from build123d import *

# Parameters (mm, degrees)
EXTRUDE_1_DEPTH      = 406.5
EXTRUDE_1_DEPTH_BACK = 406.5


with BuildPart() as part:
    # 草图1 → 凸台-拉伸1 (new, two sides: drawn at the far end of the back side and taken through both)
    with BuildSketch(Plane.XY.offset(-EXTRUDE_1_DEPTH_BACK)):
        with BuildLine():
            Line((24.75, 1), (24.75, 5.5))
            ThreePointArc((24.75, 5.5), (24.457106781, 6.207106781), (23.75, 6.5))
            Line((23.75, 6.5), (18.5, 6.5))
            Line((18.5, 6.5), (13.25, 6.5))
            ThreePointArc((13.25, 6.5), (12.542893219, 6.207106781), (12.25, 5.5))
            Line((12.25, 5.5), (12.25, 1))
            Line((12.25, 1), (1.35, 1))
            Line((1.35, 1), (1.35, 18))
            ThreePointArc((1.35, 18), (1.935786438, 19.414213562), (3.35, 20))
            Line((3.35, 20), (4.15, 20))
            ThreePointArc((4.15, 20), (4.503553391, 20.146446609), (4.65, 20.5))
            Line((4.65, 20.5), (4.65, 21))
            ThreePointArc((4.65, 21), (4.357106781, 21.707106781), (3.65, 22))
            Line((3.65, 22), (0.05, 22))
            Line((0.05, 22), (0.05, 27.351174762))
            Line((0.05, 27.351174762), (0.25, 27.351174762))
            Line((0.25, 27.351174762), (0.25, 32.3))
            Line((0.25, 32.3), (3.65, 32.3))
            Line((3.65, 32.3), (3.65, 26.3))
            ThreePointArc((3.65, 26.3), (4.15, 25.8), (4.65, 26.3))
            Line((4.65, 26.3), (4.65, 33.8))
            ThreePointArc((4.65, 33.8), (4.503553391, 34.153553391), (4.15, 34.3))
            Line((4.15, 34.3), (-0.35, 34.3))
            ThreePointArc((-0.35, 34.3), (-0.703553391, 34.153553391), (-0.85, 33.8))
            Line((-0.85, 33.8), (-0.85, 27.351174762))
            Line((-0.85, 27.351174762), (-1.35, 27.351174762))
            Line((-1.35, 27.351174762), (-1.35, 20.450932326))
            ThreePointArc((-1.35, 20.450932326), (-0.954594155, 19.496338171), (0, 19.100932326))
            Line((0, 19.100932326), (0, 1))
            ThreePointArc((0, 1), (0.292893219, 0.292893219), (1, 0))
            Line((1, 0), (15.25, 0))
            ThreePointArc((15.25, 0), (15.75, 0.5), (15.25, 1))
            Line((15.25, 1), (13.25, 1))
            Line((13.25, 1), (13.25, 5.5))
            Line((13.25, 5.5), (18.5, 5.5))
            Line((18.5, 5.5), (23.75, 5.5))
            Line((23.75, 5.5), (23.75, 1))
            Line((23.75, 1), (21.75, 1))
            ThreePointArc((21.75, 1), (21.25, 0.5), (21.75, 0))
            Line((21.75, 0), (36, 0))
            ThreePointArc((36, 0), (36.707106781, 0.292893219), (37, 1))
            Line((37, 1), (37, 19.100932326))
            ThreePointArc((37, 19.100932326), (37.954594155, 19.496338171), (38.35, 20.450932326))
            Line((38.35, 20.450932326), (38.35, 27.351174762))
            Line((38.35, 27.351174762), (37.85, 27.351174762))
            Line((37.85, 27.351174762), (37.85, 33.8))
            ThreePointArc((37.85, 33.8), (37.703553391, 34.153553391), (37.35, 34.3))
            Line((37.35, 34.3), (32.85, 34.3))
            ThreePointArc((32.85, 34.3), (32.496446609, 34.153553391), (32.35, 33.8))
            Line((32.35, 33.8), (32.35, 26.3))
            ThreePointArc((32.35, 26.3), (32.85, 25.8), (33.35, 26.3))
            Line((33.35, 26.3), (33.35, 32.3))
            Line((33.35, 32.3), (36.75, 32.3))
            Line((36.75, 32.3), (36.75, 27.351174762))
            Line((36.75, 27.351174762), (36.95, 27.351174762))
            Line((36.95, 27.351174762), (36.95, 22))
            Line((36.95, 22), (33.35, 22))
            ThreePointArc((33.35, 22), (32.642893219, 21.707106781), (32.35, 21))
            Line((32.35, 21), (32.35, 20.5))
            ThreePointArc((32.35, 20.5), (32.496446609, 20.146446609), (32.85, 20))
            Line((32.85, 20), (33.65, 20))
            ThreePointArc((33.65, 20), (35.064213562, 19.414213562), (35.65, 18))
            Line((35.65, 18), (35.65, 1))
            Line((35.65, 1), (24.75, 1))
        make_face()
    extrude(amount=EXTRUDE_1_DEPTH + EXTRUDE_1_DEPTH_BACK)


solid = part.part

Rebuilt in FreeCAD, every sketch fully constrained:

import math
import FreeCAD as App
import Part
import Sketcher
Q = App.Units.Quantity

doc = App.newDocument("Part")
body = doc.addObject("PartDesign::Body", "Body")

# Sketch on XY plane
sketch1 = doc.addObject("Sketcher::SketchObject", "Sketch")
body.addObject(sketch1)
sketch1.AttachmentSupport = (doc.XY_Plane, [""])
sketch1.MapMode = "FlatFace"
sketch1.addGeometry([
    Part.LineSegment(App.Vector(24.75, 1, 0), App.Vector(24.75, 5.5, 0)),  # 0
    Part.ArcOfCircle(Part.Circle(App.Vector(23.75, 5.5, 0), App.Vector(0, 0, 1), 1), math.radians(0), math.radians(90)),  # 1
    Part.LineSegment(App.Vector(23.75, 6.5, 0), App.Vector(13.25, 6.5, 0)),  # 2
    Part.ArcOfCircle(Part.Circle(App.Vector(13.25, 5.5, 0), App.Vector(0, 0, 1), 1), math.radians(90), math.radians(180)),  # 3
    Part.LineSegment(App.Vector(12.25, 5.5, 0), App.Vector(12.25, 1, 0)),  # 4
    Part.LineSegment(App.Vector(12.25, 1, 0), App.Vector(1.35, 1, 0)),  # 5
    Part.LineSegment(App.Vector(1.35, 1, 0), App.Vector(1.35, 18, 0)),  # 6
    Part.ArcOfCircle(Part.Circle(App.Vector(3.35, 18, 0), App.Vector(0, 0, 1), 2), math.radians(90), math.radians(180)),  # 7
    Part.LineSegment(App.Vector(3.35, 20, 0), App.Vector(4.15, 20, 0)),  # 8
    Part.ArcOfCircle(Part.Circle(App.Vector(4.15, 20.5, 0), App.Vector(0, 0, 1), 0.5), math.radians(-90), math.radians(0)),  # 9
    Part.LineSegment(App.Vector(4.65, 20.5, 0), App.Vector(4.65, 21, 0)),  # 10
    Part.ArcOfCircle(Part.Circle(App.Vector(3.65, 21, 0), App.Vector(0, 0, 1), 1), math.radians(0), math.radians(90)),  # 11
    Part.LineSegment(App.Vector(3.65, 22, 0), App.Vector(0.05, 22, 0)),  # 12
    Part.LineSegment(App.Vector(0.05, 22, 0), App.Vector(0.05, 27.35, 0)),  # 13
    Part.LineSegment(App.Vector(0.05, 27.35, 0), App.Vector(0.25, 27.35, 0)),  # 14
    Part.LineSegment(App.Vector(0.25, 27.35, 0), App.Vector(0.25, 32.3, 0)),  # 15
    Part.LineSegment(App.Vector(0.25, 32.3, 0), App.Vector(3.65, 32.3, 0)),  # 16
    Part.LineSegment(App.Vector(3.65, 32.3, 0), App.Vector(3.65, 26.3, 0)),  # 17
    Part.ArcOfCircle(Part.Circle(App.Vector(4.15, 26.3, 0), App.Vector(0, 0, 1), 0.5), math.radians(180), math.radians(360)),  # 18
    Part.LineSegment(App.Vector(4.65, 26.3, 0), App.Vector(4.65, 33.8, 0)),  # 19
    Part.ArcOfCircle(Part.Circle(App.Vector(4.15, 33.8, 0), App.Vector(0, 0, 1), 0.5), math.radians(0), math.radians(90)),  # 20
    Part.LineSegment(App.Vector(4.15, 34.3, 0), App.Vector(-0.35, 34.3, 0)),  # 21
    Part.ArcOfCircle(Part.Circle(App.Vector(-0.35, 33.8, 0), App.Vector(0, 0, 1), 0.5), math.radians(90), math.radians(180)),  # 22
    Part.LineSegment(App.Vector(-0.85, 33.8, 0), App.Vector(-0.85, 27.35, 0)),  # 23
    Part.LineSegment(App.Vector(-0.85, 27.35, 0), App.Vector(-1.35, 27.35, 0)),  # 24
    Part.LineSegment(App.Vector(-1.35, 27.35, 0), App.Vector(-1.35, 20.45, 0)),  # 25
    Part.ArcOfCircle(Part.Circle(App.Vector(0, 20.45, 0), App.Vector(0, 0, 1), 1.35), math.radians(180), math.radians(270)),  # 26
    Part.LineSegment(App.Vector(0, 19.1, 0), App.Vector(0, 1, 0)),  # 27
    Part.ArcOfCircle(Part.Circle(App.Vector(1, 1, 0), App.Vector(0, 0, 1), 1), math.radians(-180), math.radians(-90)),  # 28
    Part.LineSegment(App.Vector(1, 0, 0), App.Vector(15.25, 0, 0)),  # 29
    Part.ArcOfCircle(Part.Circle(App.Vector(15.25, 0.5, 0), App.Vector(0, 0, 1), 0.5), math.radians(-90), math.radians(90)),  # 30
    Part.LineSegment(App.Vector(15.25, 1, 0), App.Vector(13.25, 1, 0)),  # 31
    Part.LineSegment(App.Vector(13.25, 1, 0), App.Vector(13.25, 5.5, 0)),  # 32
    Part.LineSegment(App.Vector(13.25, 5.5, 0), App.Vector(23.75, 5.5, 0)),  # 33
    Part.LineSegment(App.Vector(23.75, 5.5, 0), App.Vector(23.75, 1, 0)),  # 34
    Part.LineSegment(App.Vector(23.75, 1, 0), App.Vector(21.75, 1, 0)),  # 35
    Part.ArcOfCircle(Part.Circle(App.Vector(21.75, 0.5, 0), App.Vector(0, 0, 1), 0.5), math.radians(90), math.radians(270)),  # 36
    Part.LineSegment(App.Vector(21.75, 0, 0), App.Vector(36, 0, 0)),  # 37
    Part.ArcOfCircle(Part.Circle(App.Vector(36, 1, 0), App.Vector(0, 0, 1), 1), math.radians(-90), math.radians(0)),  # 38
    Part.LineSegment(App.Vector(37, 1, 0), App.Vector(37, 19.1, 0)),  # 39
    Part.ArcOfCircle(Part.Circle(App.Vector(37, 20.45, 0), App.Vector(0, 0, 1), 1.35), math.radians(-90), math.radians(0)),  # 40
    Part.LineSegment(App.Vector(38.35, 20.45, 0), App.Vector(38.35, 27.35, 0)),  # 41
    Part.LineSegment(App.Vector(38.35, 27.35, 0), App.Vector(37.85, 27.35, 0)),  # 42
    Part.LineSegment(App.Vector(37.85, 27.35, 0), App.Vector(37.85, 33.8, 0)),  # 43
    Part.ArcOfCircle(Part.Circle(App.Vector(37.35, 33.8, 0), App.Vector(0, 0, 1), 0.5), math.radians(0), math.radians(90)),  # 44
    Part.LineSegment(App.Vector(37.35, 34.3, 0), App.Vector(32.85, 34.3, 0)),  # 45
    Part.ArcOfCircle(Part.Circle(App.Vector(32.85, 33.8, 0), App.Vector(0, 0, 1), 0.5), math.radians(90), math.radians(180)),  # 46
    Part.LineSegment(App.Vector(32.35, 33.8, 0), App.Vector(32.35, 26.3, 0)),  # 47
    Part.ArcOfCircle(Part.Circle(App.Vector(32.85, 26.3, 0), App.Vector(0, 0, 1), 0.5), math.radians(180), math.radians(360)),  # 48
    Part.LineSegment(App.Vector(33.35, 26.3, 0), App.Vector(33.35, 32.3, 0)),  # 49
    Part.LineSegment(App.Vector(33.35, 32.3, 0), App.Vector(36.75, 32.3, 0)),  # 50
    Part.LineSegment(App.Vector(36.75, 32.3, 0), App.Vector(36.75, 27.35, 0)),  # 51
    Part.LineSegment(App.Vector(36.75, 27.35, 0), App.Vector(36.95, 27.35, 0)),  # 52
    Part.LineSegment(App.Vector(36.95, 27.35, 0), App.Vector(36.95, 22, 0)),  # 53
    Part.LineSegment(App.Vector(36.95, 22, 0), App.Vector(33.35, 22, 0)),  # 54
    Part.ArcOfCircle(Part.Circle(App.Vector(33.35, 21, 0), App.Vector(0, 0, 1), 1), math.radians(90), math.radians(180)),  # 55
    Part.LineSegment(App.Vector(32.35, 21, 0), App.Vector(32.35, 20.5, 0)),  # 56
    Part.ArcOfCircle(Part.Circle(App.Vector(32.85, 20.5, 0), App.Vector(0, 0, 1), 0.5), math.radians(180), math.radians(270)),  # 57
    Part.LineSegment(App.Vector(32.85, 20, 0), App.Vector(33.65, 20, 0)),  # 58
    Part.ArcOfCircle(Part.Circle(App.Vector(33.65, 18, 0), App.Vector(0, 0, 1), 2), math.radians(0), math.radians(90)),  # 59
    Part.LineSegment(App.Vector(35.65, 18, 0), App.Vector(35.65, 1, 0)),  # 60
    Part.LineSegment(App.Vector(35.65, 1, 0), App.Vector(24.75, 1, 0)),  # 61
], False)
sketch1.addConstraint([
    Sketcher.Constraint("Tangent", 0, 2, 1, 1),
    Sketcher.Constraint("Tangent", 1, 2, 2, 1),
    Sketcher.Constraint("Tangent", 2, 2, 3, 1),
    Sketcher.Constraint("Tangent", 3, 2, 4, 1),
    Sketcher.Constraint("Coincident", 4, 2, 5, 1),
    Sketcher.Constraint("Coincident", 5, 2, 6, 1),
    Sketcher.Constraint("Tangent", 6, 2, 7, 2),
    Sketcher.Constraint("Tangent", 7, 1, 8, 1),
    Sketcher.Constraint("Tangent", 8, 2, 9, 1),
    Sketcher.Constraint("Tangent", 9, 2, 10, 1),
    Sketcher.Constraint("Tangent", 10, 2, 11, 1),
    Sketcher.Constraint("Tangent", 11, 2, 12, 1),
    Sketcher.Constraint("Coincident", 12, 2, 13, 1),
    Sketcher.Constraint("Coincident", 13, 2, 14, 1),
    Sketcher.Constraint("Coincident", 14, 2, 15, 1),
    Sketcher.Constraint("Coincident", 15, 2, 16, 1),
    Sketcher.Constraint("Coincident", 16, 2, 17, 1),
    Sketcher.Constraint("Tangent", 17, 2, 18, 1),
    Sketcher.Constraint("Tangent", 18, 2, 19, 1),
    Sketcher.Constraint("Tangent", 19, 2, 20, 1),
    Sketcher.Constraint("Tangent", 20, 2, 21, 1),
    Sketcher.Constraint("Tangent", 21, 2, 22, 1),
    Sketcher.Constraint("Tangent", 22, 2, 23, 1),
    Sketcher.Constraint("Coincident", 23, 2, 24, 1),
    Sketcher.Constraint("Coincident", 24, 2, 25, 1),
    Sketcher.Constraint("Tangent", 25, 2, 26, 1),
    Sketcher.Constraint("Coincident", 26, 2, 27, 1),
    Sketcher.Constraint("Tangent", 27, 2, 28, 1),
    Sketcher.Constraint("Tangent", 28, 2, 29, 1),
    Sketcher.Constraint("Tangent", 29, 2, 30, 1),
    Sketcher.Constraint("Tangent", 30, 2, 31, 1),
    Sketcher.Constraint("Coincident", 31, 2, 32, 1),
    Sketcher.Constraint("Coincident", 32, 2, 33, 1),
    Sketcher.Constraint("Coincident", 33, 2, 34, 1),
    Sketcher.Constraint("Coincident", 34, 2, 35, 1),
    Sketcher.Constraint("Tangent", 35, 2, 36, 1),
    Sketcher.Constraint("Tangent", 36, 2, 37, 1),
    Sketcher.Constraint("Tangent", 37, 2, 38, 1),
    Sketcher.Constraint("Tangent", 38, 2, 39, 1),
    Sketcher.Constraint("Coincident", 39, 2, 40, 1),
    Sketcher.Constraint("Tangent", 40, 2, 41, 1),
    Sketcher.Constraint("Coincident", 41, 2, 42, 1),
    Sketcher.Constraint("Coincident", 42, 2, 43, 1),
    Sketcher.Constraint("Tangent", 43, 2, 44, 1),
    Sketcher.Constraint("Tangent", 44, 2, 45, 1),
    Sketcher.Constraint("Tangent", 45, 2, 46, 1),
    Sketcher.Constraint("Tangent", 46, 2, 47, 1),
    Sketcher.Constraint("Tangent", 47, 2, 48, 1),
    Sketcher.Constraint("Tangent", 48, 2, 49, 1),
    Sketcher.Constraint("Coincident", 49, 2, 50, 1),
    Sketcher.Constraint("Coincident", 50, 2, 51, 1),
    Sketcher.Constraint("Coincident", 51, 2, 52, 1),
    Sketcher.Constraint("Coincident", 52, 2, 53, 1),
    Sketcher.Constraint("Coincident", 53, 2, 54, 1),
    Sketcher.Constraint("Tangent", 54, 2, 55, 1),
    Sketcher.Constraint("Tangent", 55, 2, 56, 1),
    Sketcher.Constraint("Tangent", 56, 2, 57, 1),
    Sketcher.Constraint("Tangent", 57, 2, 58, 1),
    Sketcher.Constraint("Tangent", 58, 2, 59, 2),
    Sketcher.Constraint("Tangent", 59, 1, 60, 1),
    Sketcher.Constraint("Coincident", 60, 2, 61, 1),
    Sketcher.Constraint("Coincident", 61, 2, 0, 1),
    Sketcher.Constraint("Vertical", 0),
    Sketcher.Constraint("Horizontal", 2),
    Sketcher.Constraint("Vertical", 4),
    Sketcher.Constraint("Horizontal", 5),
    Sketcher.Constraint("Vertical", 6),
    Sketcher.Constraint("Horizontal", 8),
    Sketcher.Constraint("Vertical", 10),
    Sketcher.Constraint("Horizontal", 12),
    Sketcher.Constraint("Vertical", 13),
    Sketcher.Constraint("Horizontal", 14),
    Sketcher.Constraint("Vertical", 15),
    Sketcher.Constraint("Horizontal", 16),
    Sketcher.Constraint("Vertical", 17),
    Sketcher.Constraint("Vertical", 19),
    Sketcher.Constraint("Horizontal", 21),
    Sketcher.Constraint("Vertical", 23),
    Sketcher.Constraint("Horizontal", 24),
    Sketcher.Constraint("Vertical", 25),
    Sketcher.Constraint("Vertical", 27),
    Sketcher.Constraint("Horizontal", 29),
    Sketcher.Constraint("Horizontal", 31),
    Sketcher.Constraint("Vertical", 32),
    Sketcher.Constraint("Horizontal", 33),
    Sketcher.Constraint("Vertical", 34),
    Sketcher.Constraint("Horizontal", 35),
    Sketcher.Constraint("Horizontal", 37),
    Sketcher.Constraint("Vertical", 39),
    Sketcher.Constraint("Vertical", 41),
    Sketcher.Constraint("Horizontal", 42),
    Sketcher.Constraint("Vertical", 43),
    Sketcher.Constraint("Horizontal", 45),
    Sketcher.Constraint("Vertical", 47),
    Sketcher.Constraint("Vertical", 49),
    Sketcher.Constraint("Horizontal", 50),
    Sketcher.Constraint("Vertical", 51),
    Sketcher.Constraint("Horizontal", 52),
    Sketcher.Constraint("Vertical", 53),
    Sketcher.Constraint("Horizontal", 54),
    Sketcher.Constraint("Vertical", 56),
    Sketcher.Constraint("Horizontal", 58),
    Sketcher.Constraint("Vertical", 60),
    Sketcher.Constraint("Horizontal", 61),
    Sketcher.Constraint("Coincident", 32, 2, 3, 3),
    Sketcher.Constraint("Coincident", 33, 2, 1, 3),
    Sketcher.Constraint("Equal", 3, 11),
    Sketcher.Constraint("Equal", 9, 18),
    Sketcher.Constraint("Equal", 18, 20),
    Sketcher.Constraint("Equal", 20, 22),
    Sketcher.Constraint("Equal", 11, 28),
    Sketcher.Constraint("Equal", 22, 30),
    Sketcher.Constraint("Equal", 30, 36),
    Sketcher.Constraint("Equal", 28, 38),
    Sketcher.Constraint("Equal", 26, 40),
    Sketcher.Constraint("Equal", 36, 44),
    Sketcher.Constraint("Equal", 44, 46),
    Sketcher.Constraint("Equal", 46, 48),
    Sketcher.Constraint("Equal", 38, 55),
    Sketcher.Constraint("Equal", 48, 57),
    Sketcher.Constraint("Equal", 7, 59),
    Sketcher.Constraint("PointOnObject", 26, 3, -2),
    Sketcher.Constraint("PointOnObject", 26, 2, -2),
    Sketcher.Constraint("PointOnObject", 28, 2, -1),
    Sketcher.Constraint("PointOnObject", 36, 2, -1),
    Sketcher.Constraint("Horizontal", 26, 3, 40, 3),
    Sketcher.Constraint("Horizontal", 22, 3, 44, 3),
    Sketcher.Constraint("Horizontal", 18, 3, 48, 3),
    Sketcher.Constraint("Horizontal", 11, 3, 55, 3),
    Sketcher.Constraint("Horizontal", 9, 3, 57, 3),
    Sketcher.Constraint("Horizontal", 38, 3, 4, 2),
    Sketcher.Constraint("Horizontal", 14, 2, 23, 2),
    Sketcher.Constraint("Horizontal", 27, 2, 30, 2),
    Sketcher.Constraint("Horizontal", 24, 2, 41, 2),
    Sketcher.Constraint("Horizontal", 16, 2, 49, 2),
    Sketcher.Constraint("Horizontal", 42, 2, 51, 2),
    Sketcher.Constraint("Horizontal", 38, 2, 60, 2),
    Sketcher.Constraint("Vertical", 9, 3, 18, 3),
    Sketcher.Constraint("Vertical", 48, 3, 57, 3),
    Sketcher.Constraint("Vertical", 40, 3, 38, 2),
    Sketcher.Constraint("Equal", 31, 35),
    Sketcher.Constraint("Equal", 29, 37),
    Sketcher.Constraint("Equal", 24, 42),
    Sketcher.Constraint("Equal", 21, 45),
    Sketcher.Constraint("Equal", 16, 50),
    Sketcher.Constraint("Equal", 14, 52),
    Sketcher.Constraint("Equal", 8, 58),
    Sketcher.Constraint("Equal", 45, 0),
    Sketcher.Constraint("Equal", 42, 10),
    Sketcher.Constraint("Radius", 1, Q("1 mm")),
    Sketcher.Constraint("Radius", 7, Q("2 mm")),
    Sketcher.Constraint("DistanceX", 31, 2, 31, 1, Q("2 mm")),
    Sketcher.Constraint("DistanceY", 6, 1, 6, 2, Q("17 mm")),
    Sketcher.Constraint("DistanceY", 17, 2, 17, 1, Q("6 mm")),
    Sketcher.Constraint("Radius", 26, Q("1.35 mm")),
    Sketcher.Constraint("DistanceX", 2, 2, 2, 1, Q("10.5 mm")),
    Sketcher.Constraint("DistanceX", 5, 2, 5, 1, Q("10.9 mm")),
    Sketcher.Constraint("DistanceX", 8, 1, 8, 2, Q("0.8 mm")),
    Sketcher.Constraint("DistanceX", 12, 2, 12, 1, Q("3.6 mm")),
    Sketcher.Constraint("DistanceX", 14, 1, 14, 2, Q("0.2 mm")),
    Sketcher.Constraint("DistanceX", 21, 2, 21, 1, Q("4.5 mm")),
    Sketcher.Constraint("DistanceX", 24, 2, 24, 1, Q("0.5 mm")),
    Sketcher.Constraint("DistanceY", 19, 1, 19, 2, Q("7.5 mm")),
    Sketcher.Constraint("DistanceY", -1, 1, 18, 3, Q("26.3 mm")),
    Sketcher.Constraint("DistanceY", 13, 1, 13, 2, Q("5.351175 mm")),
    Sketcher.Constraint("DistanceY", 25, 2, 25, 1, Q("6.900242 mm")),
])
pad1 = doc.addObject("PartDesign::Pad", "Pad")
body.addObject(pad1)
pad1.Profile = sketch1
pad1.Type = "TwoLengths"
pad1.Length = 406.5
pad1.Length2 = 406.5

doc.recompute()
